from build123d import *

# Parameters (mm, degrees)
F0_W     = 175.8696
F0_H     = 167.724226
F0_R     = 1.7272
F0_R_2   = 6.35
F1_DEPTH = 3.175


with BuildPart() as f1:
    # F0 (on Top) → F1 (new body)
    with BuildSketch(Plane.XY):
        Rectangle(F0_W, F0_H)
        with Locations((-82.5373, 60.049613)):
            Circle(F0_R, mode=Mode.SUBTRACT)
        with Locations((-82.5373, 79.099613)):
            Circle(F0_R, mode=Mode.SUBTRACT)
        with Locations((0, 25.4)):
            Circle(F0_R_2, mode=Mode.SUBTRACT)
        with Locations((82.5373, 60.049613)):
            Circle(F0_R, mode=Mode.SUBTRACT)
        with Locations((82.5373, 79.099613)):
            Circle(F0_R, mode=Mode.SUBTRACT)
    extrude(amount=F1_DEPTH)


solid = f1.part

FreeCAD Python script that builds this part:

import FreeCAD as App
import Part
import Sketcher
Q = App.Units.Quantity


def add_polygon(sketch, points):
    """Adds a closed chain of lines whose ends are joined by coincident constraints."""
    first, n = sketch.GeometryCount, len(points)
    for a, b in zip(points, points[1:] + points[:1]):
        sketch.addGeometry(Part.LineSegment(App.Vector(*a, 0), App.Vector(*b, 0)), False)
    for i in range(n):
        sketch.addConstraint(Sketcher.Constraint("Coincident", first + i, 2, first + (i + 1) % n, 1))

doc = App.newDocument("Part")
body = doc.addObject("PartDesign::Body", "Body")

# Sketch on XY plane
sketch1 = doc.addObject("Sketcher::SketchObject", "Sketch")
body.addObject(sketch1)
sketch1.AttachmentSupport = (doc.XY_Plane, [""])
sketch1.MapMode = "FlatFace"
add_polygon(sketch1, [(-87.9, 83.9), (-87.9, -83.9), (87.9, -83.9), (87.9, 83.9)])  # lines 0-3
sketch1.addGeometry(Part.Circle(App.Vector(0, 25.4, 0), App.Vector(0, 0, 1), 6.3), False)  # 4
sketch1.addGeometry(Part.Circle(App.Vector(-82.5, 60, 0), App.Vector(0, 0, 1), 1.7), False)  # 5
sketch1.addGeometry(Part.Circle(App.Vector(-82.5, 79.1, 0), App.Vector(0, 0, 1), 1.7), False)  # 6
sketch1.addGeometry(Part.Circle(App.Vector(82.5, 60, 0), App.Vector(0, 0, 1), 1.7), False)  # 7
sketch1.addGeometry(Part.Circle(App.Vector(82.5, 79.1, 0), App.Vector(0, 0, 1), 1.7), False)  # 8
sketch1.addConstraint(Sketcher.Constraint("Vertical", 0))
sketch1.addConstraint(Sketcher.Constraint("Horizontal", 1))
sketch1.addConstraint(Sketcher.Constraint("Vertical", 2))
sketch1.addConstraint(Sketcher.Constraint("Horizontal", 3))
sketch1.addConstraint(Sketcher.Constraint("Equal", 5, 6))
sketch1.addConstraint(Sketcher.Constraint("Equal", 6, 7))
sketch1.addConstraint(Sketcher.Constraint("Equal", 7, 8))
sketch1.addConstraint(Sketcher.Constraint("Symmetric", 0, 2, 2, 2, -1, 1))
sketch1.addConstraint(Sketcher.Constraint("Symmetric", 5, 3, 7, 3, -2))
sketch1.addConstraint(Sketcher.Constraint("Symmetric", 6, 3, 8, 3, -2))
sketch1.addConstraint(Sketcher.Constraint("PointOnObject", 4, 3, -2))
sketch1.addConstraint(Sketcher.Constraint("Vertical", 5, 3, 6, 3))
sketch1.addConstraint(Sketcher.Constraint("Diameter", 4, Q("0.5 in")))
sketch1.addConstraint(Sketcher.Constraint("Diameter", 5, Q("0.136 in")))
sketch1.addConstraint(Sketcher.Constraint("DistanceY", -1, 1, 4, 3, Q("1 in")))
sketch1.addConstraint(Sketcher.Constraint("DistanceX", 1, 1, 1, 2, Q("6.924 in")))
sketch1.addConstraint(Sketcher.Constraint("DistanceY", 5, 3, 6, 3, Q("0.75 in")))
sketch1.addConstraint(Sketcher.Constraint("DistanceX", 5, 3, 7, 3, Q("6.499 in")))
sketch1.addConstraint(Sketcher.Constraint("DistanceY", 8, 3, 2, 2, Q("0.1875 in")))
sketch1.addConstraint(Sketcher.Constraint("DistanceY", 0, 2, 0, 1, 167.724226))
pad1 = doc.addObject("PartDesign::Pad", "Pad")
body.addObject(pad1)
pad1.Profile = sketch1
pad1.Length = Q("0.125 in")

doc.recompute()
